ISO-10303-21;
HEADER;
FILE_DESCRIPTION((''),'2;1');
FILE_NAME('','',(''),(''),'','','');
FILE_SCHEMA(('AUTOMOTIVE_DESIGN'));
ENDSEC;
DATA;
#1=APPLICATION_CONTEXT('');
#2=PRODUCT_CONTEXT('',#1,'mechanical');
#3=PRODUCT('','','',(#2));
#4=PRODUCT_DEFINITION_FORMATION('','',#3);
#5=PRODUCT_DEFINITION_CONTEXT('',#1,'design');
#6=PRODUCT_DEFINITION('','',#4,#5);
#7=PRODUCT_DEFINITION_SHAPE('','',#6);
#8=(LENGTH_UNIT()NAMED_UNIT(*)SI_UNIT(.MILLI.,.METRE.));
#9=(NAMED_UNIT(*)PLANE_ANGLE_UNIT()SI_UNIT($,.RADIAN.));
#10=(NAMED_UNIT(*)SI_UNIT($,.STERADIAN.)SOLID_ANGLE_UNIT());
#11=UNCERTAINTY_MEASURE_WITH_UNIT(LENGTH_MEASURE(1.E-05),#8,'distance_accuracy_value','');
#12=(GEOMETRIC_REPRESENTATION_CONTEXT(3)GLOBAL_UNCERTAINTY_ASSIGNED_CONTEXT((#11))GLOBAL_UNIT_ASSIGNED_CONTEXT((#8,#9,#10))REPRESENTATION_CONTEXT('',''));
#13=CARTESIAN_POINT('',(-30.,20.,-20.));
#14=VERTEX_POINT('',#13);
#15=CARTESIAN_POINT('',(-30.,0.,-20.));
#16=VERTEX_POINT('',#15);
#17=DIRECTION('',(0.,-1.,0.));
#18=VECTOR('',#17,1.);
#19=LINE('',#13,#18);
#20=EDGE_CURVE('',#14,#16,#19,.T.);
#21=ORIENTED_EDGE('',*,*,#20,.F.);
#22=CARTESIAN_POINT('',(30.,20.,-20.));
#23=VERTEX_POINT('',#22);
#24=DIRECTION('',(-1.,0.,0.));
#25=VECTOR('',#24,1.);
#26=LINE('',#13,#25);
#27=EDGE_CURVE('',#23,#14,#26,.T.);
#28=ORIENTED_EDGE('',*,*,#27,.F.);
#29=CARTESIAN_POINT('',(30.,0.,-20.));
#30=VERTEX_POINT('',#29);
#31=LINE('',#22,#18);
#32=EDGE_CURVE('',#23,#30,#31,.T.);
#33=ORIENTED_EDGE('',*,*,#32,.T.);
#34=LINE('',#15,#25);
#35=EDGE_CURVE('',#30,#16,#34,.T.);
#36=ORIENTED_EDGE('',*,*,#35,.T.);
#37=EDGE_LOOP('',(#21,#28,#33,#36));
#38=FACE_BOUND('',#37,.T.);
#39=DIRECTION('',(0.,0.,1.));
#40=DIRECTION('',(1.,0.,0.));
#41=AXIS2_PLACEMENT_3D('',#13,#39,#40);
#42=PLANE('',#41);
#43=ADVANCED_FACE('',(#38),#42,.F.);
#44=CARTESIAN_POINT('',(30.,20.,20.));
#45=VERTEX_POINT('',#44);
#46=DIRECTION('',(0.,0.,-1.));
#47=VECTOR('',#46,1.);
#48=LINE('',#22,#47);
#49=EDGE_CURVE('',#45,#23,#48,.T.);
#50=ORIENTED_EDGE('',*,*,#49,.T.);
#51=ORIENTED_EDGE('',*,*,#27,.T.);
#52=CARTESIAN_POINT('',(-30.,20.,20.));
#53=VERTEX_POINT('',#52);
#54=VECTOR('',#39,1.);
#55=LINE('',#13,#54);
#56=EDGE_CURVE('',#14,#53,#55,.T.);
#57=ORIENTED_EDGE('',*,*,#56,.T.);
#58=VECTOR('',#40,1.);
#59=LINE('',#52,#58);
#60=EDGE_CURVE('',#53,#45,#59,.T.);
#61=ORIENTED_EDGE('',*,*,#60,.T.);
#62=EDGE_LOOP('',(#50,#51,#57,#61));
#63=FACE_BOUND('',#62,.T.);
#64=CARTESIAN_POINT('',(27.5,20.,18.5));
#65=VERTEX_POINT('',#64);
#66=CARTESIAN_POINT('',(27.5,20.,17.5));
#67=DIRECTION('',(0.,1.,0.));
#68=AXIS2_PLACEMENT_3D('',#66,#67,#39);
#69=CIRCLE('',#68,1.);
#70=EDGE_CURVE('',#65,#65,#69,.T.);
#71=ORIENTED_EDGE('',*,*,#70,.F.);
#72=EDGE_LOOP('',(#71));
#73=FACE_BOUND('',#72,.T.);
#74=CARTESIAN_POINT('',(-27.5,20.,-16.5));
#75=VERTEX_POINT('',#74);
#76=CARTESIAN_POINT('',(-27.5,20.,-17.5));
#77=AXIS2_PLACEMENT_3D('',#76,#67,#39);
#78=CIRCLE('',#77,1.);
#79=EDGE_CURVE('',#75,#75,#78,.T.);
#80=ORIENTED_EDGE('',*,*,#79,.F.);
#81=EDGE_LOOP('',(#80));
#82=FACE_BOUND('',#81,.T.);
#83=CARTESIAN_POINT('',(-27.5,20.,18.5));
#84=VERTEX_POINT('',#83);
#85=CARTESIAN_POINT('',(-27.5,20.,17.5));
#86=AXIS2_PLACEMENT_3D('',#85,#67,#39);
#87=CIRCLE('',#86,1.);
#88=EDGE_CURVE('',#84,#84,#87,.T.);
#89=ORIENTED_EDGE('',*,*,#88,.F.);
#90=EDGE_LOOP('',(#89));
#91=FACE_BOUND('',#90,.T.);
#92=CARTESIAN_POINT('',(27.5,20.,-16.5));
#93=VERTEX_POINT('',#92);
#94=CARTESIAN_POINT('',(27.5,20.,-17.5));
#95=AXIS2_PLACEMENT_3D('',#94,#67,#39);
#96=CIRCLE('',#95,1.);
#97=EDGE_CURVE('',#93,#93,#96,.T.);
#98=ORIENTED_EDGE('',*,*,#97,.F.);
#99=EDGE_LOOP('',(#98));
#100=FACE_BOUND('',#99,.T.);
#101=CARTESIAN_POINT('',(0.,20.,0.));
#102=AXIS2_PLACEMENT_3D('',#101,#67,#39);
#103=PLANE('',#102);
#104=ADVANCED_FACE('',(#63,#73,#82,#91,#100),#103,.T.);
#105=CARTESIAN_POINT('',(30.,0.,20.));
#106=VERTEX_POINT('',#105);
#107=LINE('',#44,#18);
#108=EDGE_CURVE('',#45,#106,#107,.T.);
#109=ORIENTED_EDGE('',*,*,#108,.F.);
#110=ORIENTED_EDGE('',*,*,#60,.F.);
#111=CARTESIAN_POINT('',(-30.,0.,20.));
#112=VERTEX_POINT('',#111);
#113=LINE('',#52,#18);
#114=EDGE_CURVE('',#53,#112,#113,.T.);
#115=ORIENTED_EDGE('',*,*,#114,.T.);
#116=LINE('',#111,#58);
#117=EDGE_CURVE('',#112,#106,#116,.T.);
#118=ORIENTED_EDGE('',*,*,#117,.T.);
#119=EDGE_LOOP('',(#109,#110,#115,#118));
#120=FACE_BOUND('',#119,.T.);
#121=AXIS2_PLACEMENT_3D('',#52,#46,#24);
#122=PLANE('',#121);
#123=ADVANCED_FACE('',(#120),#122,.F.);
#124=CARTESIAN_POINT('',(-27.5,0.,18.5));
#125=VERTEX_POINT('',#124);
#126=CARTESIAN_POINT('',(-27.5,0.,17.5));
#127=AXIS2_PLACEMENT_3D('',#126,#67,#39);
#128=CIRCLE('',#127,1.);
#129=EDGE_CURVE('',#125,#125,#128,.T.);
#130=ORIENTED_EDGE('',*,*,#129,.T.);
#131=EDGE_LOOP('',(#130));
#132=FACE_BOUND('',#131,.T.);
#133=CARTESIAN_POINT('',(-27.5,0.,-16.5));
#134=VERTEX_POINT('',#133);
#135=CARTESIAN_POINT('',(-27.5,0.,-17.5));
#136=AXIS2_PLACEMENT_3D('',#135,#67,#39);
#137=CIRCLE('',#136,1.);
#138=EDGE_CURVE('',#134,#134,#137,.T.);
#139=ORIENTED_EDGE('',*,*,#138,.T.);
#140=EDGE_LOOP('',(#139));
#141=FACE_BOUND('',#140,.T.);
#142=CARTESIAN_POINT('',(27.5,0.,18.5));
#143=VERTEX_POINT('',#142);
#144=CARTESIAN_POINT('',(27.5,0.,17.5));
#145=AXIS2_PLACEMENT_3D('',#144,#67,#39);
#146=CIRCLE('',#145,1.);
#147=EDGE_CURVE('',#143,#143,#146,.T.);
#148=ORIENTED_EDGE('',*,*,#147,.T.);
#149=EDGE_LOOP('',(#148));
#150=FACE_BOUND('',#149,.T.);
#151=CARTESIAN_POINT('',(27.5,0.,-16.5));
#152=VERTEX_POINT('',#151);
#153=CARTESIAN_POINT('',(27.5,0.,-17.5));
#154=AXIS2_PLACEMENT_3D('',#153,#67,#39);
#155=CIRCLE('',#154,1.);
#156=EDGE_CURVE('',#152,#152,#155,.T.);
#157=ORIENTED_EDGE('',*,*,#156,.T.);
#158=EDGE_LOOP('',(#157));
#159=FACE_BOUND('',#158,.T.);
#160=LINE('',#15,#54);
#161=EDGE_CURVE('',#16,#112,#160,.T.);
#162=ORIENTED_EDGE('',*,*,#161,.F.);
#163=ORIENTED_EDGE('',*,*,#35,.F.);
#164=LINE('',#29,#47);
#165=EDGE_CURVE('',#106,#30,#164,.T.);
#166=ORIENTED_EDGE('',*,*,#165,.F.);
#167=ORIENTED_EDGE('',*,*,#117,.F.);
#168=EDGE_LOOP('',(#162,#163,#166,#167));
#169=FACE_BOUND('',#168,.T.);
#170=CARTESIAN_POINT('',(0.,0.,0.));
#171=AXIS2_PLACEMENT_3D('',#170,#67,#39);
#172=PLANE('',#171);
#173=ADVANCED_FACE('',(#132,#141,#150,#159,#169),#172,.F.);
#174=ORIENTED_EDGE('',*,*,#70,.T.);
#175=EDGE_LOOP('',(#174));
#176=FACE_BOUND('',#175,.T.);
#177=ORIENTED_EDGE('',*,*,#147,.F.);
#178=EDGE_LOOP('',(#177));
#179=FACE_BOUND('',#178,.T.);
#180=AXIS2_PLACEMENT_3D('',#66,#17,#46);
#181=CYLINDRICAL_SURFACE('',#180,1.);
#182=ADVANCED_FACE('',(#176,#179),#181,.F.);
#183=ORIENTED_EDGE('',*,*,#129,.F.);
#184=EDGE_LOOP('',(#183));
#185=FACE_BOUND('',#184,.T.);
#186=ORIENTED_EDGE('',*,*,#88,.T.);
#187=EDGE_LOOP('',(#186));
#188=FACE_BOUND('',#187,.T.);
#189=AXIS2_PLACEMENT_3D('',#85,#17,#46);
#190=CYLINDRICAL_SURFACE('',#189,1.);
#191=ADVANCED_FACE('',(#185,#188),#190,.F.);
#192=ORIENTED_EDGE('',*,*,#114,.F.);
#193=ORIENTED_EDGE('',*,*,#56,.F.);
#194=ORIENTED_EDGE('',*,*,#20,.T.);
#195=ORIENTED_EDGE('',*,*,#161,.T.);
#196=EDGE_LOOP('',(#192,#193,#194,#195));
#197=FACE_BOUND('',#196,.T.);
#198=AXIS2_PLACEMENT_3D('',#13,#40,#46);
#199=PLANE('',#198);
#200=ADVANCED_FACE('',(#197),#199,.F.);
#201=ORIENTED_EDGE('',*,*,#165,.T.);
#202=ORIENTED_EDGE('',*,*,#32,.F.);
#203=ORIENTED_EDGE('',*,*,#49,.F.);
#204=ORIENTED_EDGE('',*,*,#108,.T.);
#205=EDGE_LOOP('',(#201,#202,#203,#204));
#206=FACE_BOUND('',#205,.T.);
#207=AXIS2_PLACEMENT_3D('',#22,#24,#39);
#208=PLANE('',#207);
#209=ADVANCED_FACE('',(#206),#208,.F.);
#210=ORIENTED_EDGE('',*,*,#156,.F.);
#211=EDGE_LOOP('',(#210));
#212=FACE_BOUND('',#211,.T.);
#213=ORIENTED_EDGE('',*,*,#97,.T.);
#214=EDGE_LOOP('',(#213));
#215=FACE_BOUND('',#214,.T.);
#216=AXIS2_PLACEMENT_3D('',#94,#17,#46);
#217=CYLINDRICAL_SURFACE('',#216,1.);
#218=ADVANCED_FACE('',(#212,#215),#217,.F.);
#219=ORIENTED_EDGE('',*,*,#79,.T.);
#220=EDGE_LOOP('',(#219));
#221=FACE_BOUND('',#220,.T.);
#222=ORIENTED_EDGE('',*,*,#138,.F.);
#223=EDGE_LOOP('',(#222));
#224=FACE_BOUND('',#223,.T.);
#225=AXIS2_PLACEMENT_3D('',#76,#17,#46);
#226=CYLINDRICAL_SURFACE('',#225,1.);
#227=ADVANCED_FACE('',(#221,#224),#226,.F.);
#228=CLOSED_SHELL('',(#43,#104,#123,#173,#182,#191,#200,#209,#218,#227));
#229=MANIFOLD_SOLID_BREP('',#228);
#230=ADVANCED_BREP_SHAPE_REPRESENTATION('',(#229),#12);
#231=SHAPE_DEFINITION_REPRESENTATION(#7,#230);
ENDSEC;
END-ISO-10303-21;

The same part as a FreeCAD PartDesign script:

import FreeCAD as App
import Part
import Sketcher
from FreeCAD import Vector


def add_polygon(sketch, points):
    """Adds a closed chain of lines whose ends are joined by coincident constraints."""
    first, n = sketch.GeometryCount, len(points)
    for a, b in zip(points, points[1:] + points[:1]):
        sketch.addGeometry(Part.LineSegment(App.Vector(*a, 0), App.Vector(*b, 0)), False)
    for i in range(n):
        sketch.addConstraint(Sketcher.Constraint("Coincident", first + i, 2, first + (i + 1) % n, 1))

doc = App.newDocument("Part")
body = doc.addObject("PartDesign::Body", "Body")

# Sketch on XZ plane
sketch1 = body.newObject("Sketcher::SketchObject", "Sketch")
sketch1.AttachmentSupport = (doc.getObject("XZ_Plane"), [""])
sketch1.MapMode = "FlatFace"
add_polygon(sketch1, [(-30, -20), (-30, 20), (30, 20), (30, -20)])  # lines 0-3
sketch1.addGeometry(Part.Circle(Vector(-27.5, 17.5, 0), Vector(0, 0, 1), 1), False)  # 4
sketch1.addGeometry(Part.Circle(Vector(27.5, 17.5, 0), Vector(0, 0, 1), 1), False)  # 5
sketch1.addGeometry(Part.Circle(Vector(-27.5, -17.5, 0), Vector(0, 0, 1), 1), False)  # 6
sketch1.addGeometry(Part.Circle(Vector(27.5, -17.5, 0), Vector(0, 0, 1), 1), False)  # 7
sketch1.addConstraint(Sketcher.Constraint("Vertical", 0))
sketch1.addConstraint(Sketcher.Constraint("Horizontal", 1))
sketch1.addConstraint(Sketcher.Constraint("Vertical", 2))
sketch1.addConstraint(Sketcher.Constraint("Horizontal", 3))
sketch1.addConstraint(Sketcher.Constraint("Equal", 4, 5))
sketch1.addConstraint(Sketcher.Constraint("Equal", 5, 6))
sketch1.addConstraint(Sketcher.Constraint("Equal", 6, 7))
sketch1.addConstraint(Sketcher.Constraint("Symmetric", 5, 3, 6, 3, -1, 1))
sketch1.addConstraint(Sketcher.Constraint("Symmetric", 4, 3, 7, 3, -1, 1))
sketch1.addConstraint(Sketcher.Constraint("Symmetric", 0, 2, 2, 2, -1, 1))
sketch1.addConstraint(Sketcher.Constraint("Symmetric", 4, 3, 5, 3, -2))
sketch1.addConstraint(Sketcher.Constraint("Diameter", 4, 2.0))
sketch1.addConstraint(Sketcher.Constraint("DistanceX", 1, 1, 1, 2, 60.0))
sketch1.addConstraint(Sketcher.Constraint("DistanceY", 0, 1, 0, 2, 40.0))
sketch1.addConstraint(Sketcher.Constraint("DistanceX", 4, 3, 5, 3, 55.0))
sketch1.addConstraint(Sketcher.Constraint("DistanceY", 6, 3, 4, 3, 35.0))
pad1 = body.newObject("PartDesign::Pad", "Pad")
pad1.Profile = sketch1
pad1.Length = 20
pad1.Reversed = True

doc.recompute()
